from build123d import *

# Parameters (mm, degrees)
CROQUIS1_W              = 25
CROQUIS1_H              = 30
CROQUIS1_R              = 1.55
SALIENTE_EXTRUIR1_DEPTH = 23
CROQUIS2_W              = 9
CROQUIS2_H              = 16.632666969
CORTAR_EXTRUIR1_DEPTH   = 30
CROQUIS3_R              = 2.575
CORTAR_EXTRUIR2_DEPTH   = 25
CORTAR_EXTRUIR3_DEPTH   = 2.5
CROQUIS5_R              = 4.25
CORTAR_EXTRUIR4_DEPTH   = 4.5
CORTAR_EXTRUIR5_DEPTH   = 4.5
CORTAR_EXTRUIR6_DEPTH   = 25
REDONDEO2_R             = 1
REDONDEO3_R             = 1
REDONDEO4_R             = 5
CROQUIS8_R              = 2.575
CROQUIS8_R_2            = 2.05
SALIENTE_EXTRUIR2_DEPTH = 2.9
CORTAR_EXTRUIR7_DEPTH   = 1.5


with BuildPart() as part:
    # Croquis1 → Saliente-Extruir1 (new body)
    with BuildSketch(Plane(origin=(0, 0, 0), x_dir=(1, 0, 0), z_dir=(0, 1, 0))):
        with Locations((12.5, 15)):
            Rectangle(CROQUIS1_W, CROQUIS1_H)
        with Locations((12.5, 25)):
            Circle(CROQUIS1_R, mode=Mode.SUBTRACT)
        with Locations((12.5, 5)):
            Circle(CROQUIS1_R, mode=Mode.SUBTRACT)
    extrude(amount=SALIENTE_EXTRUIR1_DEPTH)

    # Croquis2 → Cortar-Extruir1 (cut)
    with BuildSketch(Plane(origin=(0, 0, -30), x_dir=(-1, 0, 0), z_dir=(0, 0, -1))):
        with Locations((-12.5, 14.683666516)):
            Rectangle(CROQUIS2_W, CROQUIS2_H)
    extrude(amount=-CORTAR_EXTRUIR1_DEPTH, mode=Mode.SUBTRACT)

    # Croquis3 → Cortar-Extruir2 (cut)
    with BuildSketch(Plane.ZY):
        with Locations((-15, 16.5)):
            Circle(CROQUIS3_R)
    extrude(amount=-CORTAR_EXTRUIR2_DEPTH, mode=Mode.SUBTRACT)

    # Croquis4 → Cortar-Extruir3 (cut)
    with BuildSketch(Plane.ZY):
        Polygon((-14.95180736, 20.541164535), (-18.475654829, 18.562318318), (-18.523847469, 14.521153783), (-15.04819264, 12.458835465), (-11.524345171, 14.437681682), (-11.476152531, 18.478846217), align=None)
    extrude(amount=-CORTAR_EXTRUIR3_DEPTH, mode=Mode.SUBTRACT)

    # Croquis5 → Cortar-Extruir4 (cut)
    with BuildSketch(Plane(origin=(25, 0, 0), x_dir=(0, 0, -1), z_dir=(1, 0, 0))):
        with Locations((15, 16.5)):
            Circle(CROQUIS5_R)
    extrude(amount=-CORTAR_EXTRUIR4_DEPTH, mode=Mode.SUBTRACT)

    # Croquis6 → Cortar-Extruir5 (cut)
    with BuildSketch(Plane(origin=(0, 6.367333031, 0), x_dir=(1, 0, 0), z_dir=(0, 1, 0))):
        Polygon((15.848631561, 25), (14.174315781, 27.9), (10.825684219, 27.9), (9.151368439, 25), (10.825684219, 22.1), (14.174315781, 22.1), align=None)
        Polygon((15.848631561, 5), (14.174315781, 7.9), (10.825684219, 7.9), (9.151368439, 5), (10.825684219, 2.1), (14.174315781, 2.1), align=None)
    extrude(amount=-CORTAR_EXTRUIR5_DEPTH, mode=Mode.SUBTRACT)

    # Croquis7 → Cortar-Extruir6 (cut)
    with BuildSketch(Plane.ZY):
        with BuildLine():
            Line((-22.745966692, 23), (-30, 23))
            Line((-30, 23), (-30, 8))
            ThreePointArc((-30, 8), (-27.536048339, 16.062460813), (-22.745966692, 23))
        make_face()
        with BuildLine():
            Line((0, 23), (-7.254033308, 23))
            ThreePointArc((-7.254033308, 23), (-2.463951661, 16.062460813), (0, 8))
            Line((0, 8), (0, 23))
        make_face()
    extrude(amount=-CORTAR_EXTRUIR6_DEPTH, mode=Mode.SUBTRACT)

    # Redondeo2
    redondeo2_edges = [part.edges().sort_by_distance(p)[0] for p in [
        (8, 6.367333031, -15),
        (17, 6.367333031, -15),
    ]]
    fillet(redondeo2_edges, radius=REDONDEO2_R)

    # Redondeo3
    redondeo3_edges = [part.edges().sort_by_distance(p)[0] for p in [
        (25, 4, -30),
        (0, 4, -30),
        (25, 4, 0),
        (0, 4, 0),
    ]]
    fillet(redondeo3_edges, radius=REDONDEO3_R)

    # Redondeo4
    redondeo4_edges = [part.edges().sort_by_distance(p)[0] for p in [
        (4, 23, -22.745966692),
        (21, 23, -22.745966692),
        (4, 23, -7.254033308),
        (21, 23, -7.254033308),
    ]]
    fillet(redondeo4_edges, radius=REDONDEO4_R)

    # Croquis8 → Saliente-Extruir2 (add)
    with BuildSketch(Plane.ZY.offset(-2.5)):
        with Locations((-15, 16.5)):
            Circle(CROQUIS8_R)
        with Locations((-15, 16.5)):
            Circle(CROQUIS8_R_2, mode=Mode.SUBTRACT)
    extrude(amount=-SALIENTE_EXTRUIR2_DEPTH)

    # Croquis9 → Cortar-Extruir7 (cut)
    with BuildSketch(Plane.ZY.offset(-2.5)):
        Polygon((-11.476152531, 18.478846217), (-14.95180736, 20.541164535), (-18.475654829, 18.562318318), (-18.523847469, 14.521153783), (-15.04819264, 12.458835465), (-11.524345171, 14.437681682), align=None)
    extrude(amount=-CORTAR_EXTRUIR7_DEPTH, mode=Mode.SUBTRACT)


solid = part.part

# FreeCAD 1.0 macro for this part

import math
import FreeCAD as App
import Part
import Sketcher
from FreeCAD import Vector
Q = App.Units.Quantity


def edges_at(feature, points):
    """Names of the edges that pass closest to the given points."""
    edges = feature.Shape.Edges
    near = lambda p: min(range(len(edges)), key=lambda i: edges[i].distToShape(Part.Vertex(*p))[0])
    return sorted({f"Edge{near(p) + 1}" for p in points})

doc = App.newDocument("Part")
body = doc.addObject("PartDesign::Body", "Body")

# Sketch on XZ plane
sketch1 = body.newObject("Sketcher::SketchObject", "Sketch")
sketch1.AttachmentSupport = (doc.getObject("XZ_Plane"), [""])
sketch1.MapMode = "FlatFace"
sketch1.addGeometry([
    Part.LineSegment(Vector(0, -30, 0), Vector(0, 0, 0)),  # 0
    Part.LineSegment(Vector(0, 0, 0), Vector(25, 0, 0)),  # 1
    Part.LineSegment(Vector(25, 0, 0), Vector(25, -30, 0)),  # 2
    Part.LineSegment(Vector(25, -30, 0), Vector(0, -30, 0)),  # 3
    Part.Circle(Vector(12.5, -5, 0), Vector(0, 0, 1), 1.6),  # 4
    Part.Circle(Vector(12.5, -25, 0), Vector(0, 0, 1), 1.6),  # 5
], False)
sketch1.addConstraint([
    Sketcher.Constraint("Coincident", 0, 2, 1, 1),
    Sketcher.Constraint("Coincident", 1, 2, 2, 1),
    Sketcher.Constraint("Coincident", 2, 2, 3, 1),
    Sketcher.Constraint("Coincident", 3, 2, 0, 1),
    Sketcher.Constraint("Vertical", 0),
    Sketcher.Constraint("Horizontal", 1),
    Sketcher.Constraint("Vertical", 2),
    Sketcher.Constraint("Horizontal", 3),
    Sketcher.Constraint("Coincident", 0, 2, -1, 1),
    Sketcher.Constraint("Equal", 4, 5),
    Sketcher.Constraint("Vertical", 4, 3, 5, 3),
    Sketcher.Constraint("Diameter", 4, 3.1),
    Sketcher.Constraint("DistanceX", 1, 1, 1, 2, 25.0),
    Sketcher.Constraint("DistanceY", 0, 1, 0, 2, 30.0),
    Sketcher.Constraint("DistanceY", 4, 3, -1, 1, 5.0),
    Sketcher.Constraint("DistanceY", 5, 3, -1, 1, 25.0),
    Sketcher.Constraint("DistanceX", -1, 1, 4, 3, 12.5),
])
pad1 = body.newObject("PartDesign::Pad", "Pad")
pad1.Profile = sketch1
pad1.Length = 23
pad1.Reversed = True

# Sketch on XY plane
sketch2 = body.newObject("Sketcher::SketchObject", "Sketch001")
sketch2.AttachmentSupport = (doc.getObject("XY_Plane"), [""])
sketch2.MapMode = "FlatFace"
sketch2.AttachmentOffset = App.Placement(Vector(0, 0, -30), App.Rotation())
sketch2.addGeometry([
    Part.LineSegment(Vector(17, 23, 0), Vector(17, 6, 0)),
    Part.LineSegment(Vector(17, 6, 0), Vector(8, 6, 0)),
    Part.LineSegment(Vector(8, 6, 0), Vector(8, 23, 0)),
    Part.LineSegment(Vector(8, 23, 0), Vector(17, 23, 0)),
], False)
sketch2.addConstraint([
    Sketcher.Constraint("Coincident", 0, 2, 1, 1),
    Sketcher.Constraint("Coincident", 1, 2, 2, 1),
    Sketcher.Constraint("Coincident", 2, 2, 3, 1),
    Sketcher.Constraint("Coincident", 3, 2, 0, 1),
    Sketcher.Constraint("Vertical", 0),
    Sketcher.Constraint("Horizontal", 1),
    Sketcher.Constraint("Vertical", 2),
    Sketcher.Constraint("Horizontal", 3),
    Sketcher.Constraint("DistanceX", 1, 2, 1, 1, 9.0),
    Sketcher.Constraint("DistanceX", -1, 1, 0, 2, 17.0),
    Sketcher.Constraint("DistanceY", -1, 1, 2, 2, 23.0),
    Sketcher.Constraint("DistanceY", 0, 2, 0, 1, 16.632667),
])
pocket1 = body.newObject("PartDesign::Pocket", "Pocket")
pocket1.Profile = sketch2
pocket1.Length = 30
pocket1.Reversed = True

# Sketch on YZ plane
sketch3 = body.newObject("Sketcher::SketchObject", "Sketch002")
sketch3.AttachmentSupport = (doc.getObject("YZ_Plane"), [""])
sketch3.MapMode = "FlatFace"
sketch3.addGeometry(Part.Circle(Vector(16.5, -15, 0), Vector(0, 0, 1), 2.6), False)
sketch3.addConstraint([
    Sketcher.Constraint("Diameter", 0, 5.15),
    Sketcher.Constraint("DistanceY", 0, 3, -1, 1, 15.0),
    Sketcher.Constraint("DistanceX", -1, 1, 0, 3, 16.5),
])
pocket2 = body.newObject("PartDesign::Pocket", "Pocket001")
pocket2.Profile = sketch3
pocket2.Length = 25
pocket2.Reversed = True

# Sketch on YZ plane
sketch4 = body.newObject("Sketcher::SketchObject", "Sketch003")
sketch4.AttachmentSupport = (doc.getObject("YZ_Plane"), [""])
sketch4.MapMode = "FlatFace"
sketch4.addGeometry([
    Part.LineSegment(Vector(20.5, -15, 0), Vector(18.6, -18.5, 0)),  # 0
    Part.LineSegment(Vector(18.6, -18.5, 0), Vector(14.5, -18.5, 0)),  # 1
    Part.LineSegment(Vector(14.5, -18.5, 0), Vector(12.5, -15, 0)),  # 2
    Part.LineSegment(Vector(12.5, -15, 0), Vector(14.4, -11.5, 0)),  # 3
    Part.LineSegment(Vector(14.4, -11.5, 0), Vector(18.5, -11.5, 0)),  # 4
    Part.LineSegment(Vector(18.5, -11.5, 0), Vector(20.5, -15, 0)),  # 5
], False)
sketch4.addConstraint([
    Sketcher.Constraint("Coincident", 0, 2, 1, 1),
    Sketcher.Constraint("Coincident", 1, 2, 2, 1),
    Sketcher.Constraint("Coincident", 2, 2, 3, 1),
    Sketcher.Constraint("Coincident", 3, 2, 4, 1),
    Sketcher.Constraint("Coincident", 4, 2, 5, 1),
    Sketcher.Constraint("Coincident", 5, 2, 0, 1),
    Sketcher.Constraint("Parallel", 0, 3),
    Sketcher.Constraint("Parallel", 1, 4),
    Sketcher.Constraint("Parallel", 2, 5),
    Sketcher.Constraint("Equal", 0, 1),
    Sketcher.Constraint("Equal", 1, 2),
    Sketcher.Constraint("Equal", 2, 3),
    Sketcher.Constraint("Distance", 0, 4.041452),
    Sketcher.Constraint("DistanceX", -1, 1, 0, 2, 18.562318),
    Sketcher.Constraint("DistanceX", -1, 1, 3, 2, 14.437682),
    Sketcher.Constraint("DistanceX", 2, 2, 1, 2, 2.062318),
    Sketcher.Constraint("DistanceY", 0, 2, 3, 2, 6.95131),
    Sketcher.Constraint("DistanceY", 0, 2, -1, 1, 18.475655),
])
pocket3 = body.newObject("PartDesign::Pocket", "Pocket002")
pocket3.Profile = sketch4
pocket3.Length = 2.5
pocket3.Reversed = True

# Sketch on YZ plane
sketch5 = body.newObject("Sketcher::SketchObject", "Sketch004")
sketch5.AttachmentSupport = (doc.getObject("YZ_Plane"), [""])
sketch5.MapMode = "FlatFace"
sketch5.AttachmentOffset = App.Placement(Vector(0, 0, 25), App.Rotation())
sketch5.addGeometry(Part.Circle(Vector(16.5, -15, 0), Vector(0, 0, 1), 4.2), False)
sketch5.addConstraint([
    Sketcher.Constraint("Diameter", 0, 8.5),
    Sketcher.Constraint("DistanceY", 0, 3, -1, 1, 15.0),
    Sketcher.Constraint("DistanceX", -1, 1, 0, 3, 16.5),
])
pocket4 = body.newObject("PartDesign::Pocket", "Pocket003")
pocket4.Profile = sketch5
pocket4.Length = 4.5

# Sketch on XZ plane
sketch6 = body.newObject("Sketcher::SketchObject", "Sketch005")
sketch6.AttachmentSupport = (doc.getObject("XZ_Plane"), [""])
sketch6.MapMode = "FlatFace"
sketch6.AttachmentOffset = App.Placement(Vector(0, 0, -6.367333), App.Rotation())
sketch6.addGeometry([
    Part.LineSegment(Vector(15.8, -25, 0), Vector(14.2, -27.9, 0)),  # 0
    Part.LineSegment(Vector(14.2, -27.9, 0), Vector(10.8, -27.9, 0)),  # 1
    Part.LineSegment(Vector(10.8, -27.9, 0), Vector(9.2, -25, 0)),  # 2
    Part.LineSegment(Vector(9.2, -25, 0), Vector(10.8, -22.1, 0)),  # 3
    Part.LineSegment(Vector(10.8, -22.1, 0), Vector(14.2, -22.1, 0)),  # 4
    Part.LineSegment(Vector(14.2, -22.1, 0), Vector(15.8, -25, 0)),  # 5
    Part.LineSegment(Vector(15.8, -5, 0), Vector(14.2, -7.9, 0)),  # 6
    Part.LineSegment(Vector(14.2, -7.9, 0), Vector(10.8, -7.9, 0)),  # 7
    Part.LineSegment(Vector(10.8, -7.9, 0), Vector(9.2, -5, 0)),  # 8
    Part.LineSegment(Vector(9.2, -5, 0), Vector(10.8, -2.1, 0)),  # 9
    Part.LineSegment(Vector(10.8, -2.1, 0), Vector(14.2, -2.1, 0)),  # 10
    Part.LineSegment(Vector(14.2, -2.1, 0), Vector(15.8, -5, 0)),  # 11
], False)
sketch6.addConstraint([
    Sketcher.Constraint("Coincident", 0, 2, 1, 1),
    Sketcher.Constraint("Coincident", 1, 2, 2, 1),
    Sketcher.Constraint("Coincident", 2, 2, 3, 1),
    Sketcher.Constraint("Coincident", 3, 2, 4, 1),
    Sketcher.Constraint("Coincident", 4, 2, 5, 1),
    Sketcher.Constraint("Coincident", 5, 2, 0, 1),
    Sketcher.Constraint("Coincident", 6, 2, 7, 1),
    Sketcher.Constraint("Coincident", 7, 2, 8, 1),
    Sketcher.Constraint("Coincident", 8, 2, 9, 1),
    Sketcher.Constraint("Coincident", 9, 2, 10, 1),
    Sketcher.Constraint("Coincident", 10, 2, 11, 1),
    Sketcher.Constraint("Coincident", 11, 2, 6, 1),
    Sketcher.Constraint("Horizontal", 1),
    Sketcher.Constraint("Horizontal", 4),
    Sketcher.Constraint("Horizontal", 7),
    Sketcher.Constraint("Horizontal", 10),
    Sketcher.Constraint("Parallel", 0, 3),
    Sketcher.Constraint("Parallel", 2, 5),
    Sketcher.Constraint("Parallel", 3, 6),
    Sketcher.Constraint("Parallel", 5, 8),
    Sketcher.Constraint("Parallel", 6, 9),
    Sketcher.Constraint("Parallel", 8, 11),
    Sketcher.Constraint("Horizontal", 2, 2, 5, 2),
    Sketcher.Constraint("Horizontal", 8, 2, 11, 2),
    Sketcher.Constraint("Vertical", 1, 2, 3, 2),
    Sketcher.Constraint("Vertical", 0, 2, 4, 2),
    Sketcher.Constraint("Vertical", 4, 2, 6, 2),
    Sketcher.Constraint("Vertical", 3, 2, 7, 2),
    Sketcher.Constraint("Vertical", 2, 2, 8, 2),
    Sketcher.Constraint("Vertical", 7, 2, 9, 2),
    Sketcher.Constraint("Angle", 0, Q("-120 deg")),
    Sketcher.Constraint("DistanceY", 2, 2, -1, 1, 25.0),
    Sketcher.Constraint("DistanceY", 8, 2, -1, 1, 5.0),
    Sketcher.Constraint("DistanceY", 0, 2, -1, 1, 27.9),
    Sketcher.Constraint("DistanceX", 1, 2, 1, 1, 3.348632),
    Sketcher.Constraint("DistanceX", -1, 1, 2, 2, 9.151368),
])
pocket5 = body.newObject("PartDesign::Pocket", "Pocket004")
pocket5.Profile = sketch6
pocket5.Length = 4.5
pocket5.Reversed = True

# Sketch on YZ plane
sketch7 = body.newObject("Sketcher::SketchObject", "Sketch006")
sketch7.AttachmentSupport = (doc.getObject("YZ_Plane"), [""])
sketch7.MapMode = "FlatFace"
sketch7.addGeometry([
    Part.LineSegment(Vector(23, -23, 0), Vector(23, -30, 0)),  # 0
    Part.LineSegment(Vector(23, -30, 0), Vector(8, -30, 0)),  # 1
    Part.ArcOfCircle(Part.Circle(Vector(4, -3, 0), Vector(0, 0, 1), 28), math.radians(-82), math.radians(-47)),  # 2
    Part.LineSegment(Vector(23, 0, 0), Vector(23, -7, 0)),  # 3
    Part.ArcOfCircle(Part.Circle(Vector(4, -27, 0), Vector(0, 0, 1), 28), math.radians(47), math.radians(82)),  # 4
    Part.LineSegment(Vector(8, 0, 0), Vector(23, 0, 0)),  # 5
], False)
sketch7.addConstraint([
    Sketcher.Constraint("Coincident", 0, 2, 1, 1),
    Sketcher.Constraint("Coincident", 1, 2, 2, 1),
    Sketcher.Constraint("Coincident", 2, 2, 0, 1),
    Sketcher.Constraint("Coincident", 3, 2, 4, 1),
    Sketcher.Constraint("Coincident", 4, 2, 5, 1),
    Sketcher.Constraint("Coincident", 5, 2, 3, 1),
    Sketcher.Constraint("Vertical", 0),
    Sketcher.Constraint("Horizontal", 1),
    Sketcher.Constraint("Vertical", 3),
    Sketcher.Constraint("Horizontal", 5),
    Sketcher.Constraint("Equal", 2, 4),
    Sketcher.Constraint("PointOnObject", 4, 2, -1),
    Sketcher.Constraint("Vertical", 2, 3, 4, 3),
    Sketcher.Constraint("Vertical", 2, 2, 3, 2),
    Sketcher.Constraint("Vertical", 1, 2, 4, 2),
    Sketcher.Constraint("DistanceX", 1, 2, 1, 1, 15.0),
    Sketcher.Constraint("DistanceX", -1, 1, 0, 2, 23.0),
    Sketcher.Constraint("DistanceY", 0, 2, -1, 1, 30.0),
    Sketcher.Constraint("Radius", 2, 27.507043),
    Sketcher.Constraint("DistanceY", 0, 2, 0, 1, 7.254033),
])
pocket6 = body.newObject("PartDesign::Pocket", "Pocket005")
pocket6.Profile = sketch7
pocket6.Length = 25
pocket6.Reversed = True
doc.recompute()

fillet = body.newObject("PartDesign::Fillet", "Fillet")
fillet.Base = (pocket6, edges_at(pocket6, [(8, 6.367, -15), (17, 6.367, -15)]))
fillet.Radius = 1
doc.recompute()

fillet2 = body.newObject("PartDesign::Fillet", "Fillet001")
fillet2.Base = (fillet, edges_at(fillet, [
    (25, 4, -30),
    (0, 4, -30),
    (25, 4, 0),
    (0, 4, 0),
]))
fillet2.Radius = 1
doc.recompute()

fillet3 = body.newObject("PartDesign::Fillet", "Fillet002")
fillet3.Base = (fillet2, edges_at(fillet2, [
    (4, 23, -22.746),
    (21, 23, -22.746),
    (4, 23, -7.254),
    (21, 23, -7.254),
]))
fillet3.Radius = 5

# Sketch on YZ plane
sketch8 = body.newObject("Sketcher::SketchObject", "Sketch007")
sketch8.AttachmentSupport = (doc.getObject("YZ_Plane"), [""])
sketch8.MapMode = "FlatFace"
sketch8.AttachmentOffset = App.Placement(Vector(0, 0, 2.5), App.Rotation())
sketch8.addGeometry([
    Part.Circle(Vector(16.5, -15, 0), Vector(0, 0, 1), 2.6),
    Part.Circle(Vector(16.5, -15, 0), Vector(0, 0, 1), 2),
], False)
sketch8.addConstraint([
    Sketcher.Constraint("Coincident", 1, 3, 0, 3),
    Sketcher.Constraint("Diameter", 1, 4.1),
    Sketcher.Constraint("Diameter", 0, 5.15),
    Sketcher.Constraint("DistanceY", 0, 3, -1, 1, 15.0),
    Sketcher.Constraint("DistanceX", -1, 1, 0, 3, 16.5),
])
pad2 = body.newObject("PartDesign::Pad", "Pad001")
pad2.Profile = sketch8
pad2.Length = 2.9

# Sketch on YZ plane
sketch9 = body.newObject("Sketcher::SketchObject", "Sketch008")
sketch9.AttachmentSupport = (doc.getObject("YZ_Plane"), [""])
sketch9.MapMode = "FlatFace"
sketch9.AttachmentOffset = App.Placement(Vector(0, 0, 2.5), App.Rotation())
sketch9.addGeometry([
    Part.LineSegment(Vector(18.5, -11.5, 0), Vector(20.5, -15, 0)),  # 0
    Part.LineSegment(Vector(20.5, -15, 0), Vector(18.6, -18.5, 0)),  # 1
    Part.LineSegment(Vector(18.6, -18.5, 0), Vector(14.5, -18.5, 0)),  # 2
    Part.LineSegment(Vector(14.5, -18.5, 0), Vector(12.5, -15, 0)),  # 3
    Part.LineSegment(Vector(12.5, -15, 0), Vector(14.4, -11.5, 0)),  # 4
    Part.LineSegment(Vector(14.4, -11.5, 0), Vector(18.5, -11.5, 0)),  # 5
], False)
sketch9.addConstraint([
    Sketcher.Constraint("Coincident", 0, 2, 1, 1),
    Sketcher.Constraint("Coincident", 1, 2, 2, 1),
    Sketcher.Constraint("Coincident", 2, 2, 3, 1),
    Sketcher.Constraint("Coincident", 3, 2, 4, 1),
    Sketcher.Constraint("Coincident", 4, 2, 5, 1),
    Sketcher.Constraint("Coincident", 5, 2, 0, 1),
    Sketcher.Constraint("Parallel", 0, 3),
    Sketcher.Constraint("Parallel", 1, 4),
    Sketcher.Constraint("Parallel", 2, 5),
    Sketcher.Constraint("Equal", 0, 1),
    Sketcher.Constraint("Equal", 1, 2),
    Sketcher.Constraint("Equal", 2, 3),
    Sketcher.Constraint("Distance", 0, 4.041452),
    Sketcher.Constraint("DistanceX", -1, 1, 1, 2, 18.562318),
    Sketcher.Constraint("DistanceX", -1, 1, 4, 2, 14.437682),
    Sketcher.Constraint("DistanceX", 2, 2, 0, 2, 6.020011),
    Sketcher.Constraint("DistanceY", 2, 2, 0, 2, 3.57204),
    Sketcher.Constraint("DistanceY", 0, 2, -1, 1, 14.951807),
])
pocket7 = body.newObject("PartDesign::Pocket", "Pocket006")
pocket7.Profile = sketch9
pocket7.Length = 1.5
pocket7.Reversed = True

doc.recompute()
